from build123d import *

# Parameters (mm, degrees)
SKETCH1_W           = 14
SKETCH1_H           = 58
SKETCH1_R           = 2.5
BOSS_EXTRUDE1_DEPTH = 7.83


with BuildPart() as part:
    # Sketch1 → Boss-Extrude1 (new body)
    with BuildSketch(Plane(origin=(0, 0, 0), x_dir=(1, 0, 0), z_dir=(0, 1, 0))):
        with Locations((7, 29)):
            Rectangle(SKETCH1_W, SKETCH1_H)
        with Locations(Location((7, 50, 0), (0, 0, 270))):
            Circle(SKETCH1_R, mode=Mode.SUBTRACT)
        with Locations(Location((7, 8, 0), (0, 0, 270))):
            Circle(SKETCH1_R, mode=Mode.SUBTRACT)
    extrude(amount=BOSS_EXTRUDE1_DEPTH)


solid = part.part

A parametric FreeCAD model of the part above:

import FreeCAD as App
import Part
import Sketcher

V = App.Vector

doc = App.newDocument("Part")
body = doc.addObject("PartDesign::Body", "Body")

# Sketch on XZ plane
sketch1 = body.newObject("Sketcher::SketchObject", "Sketch")
sketch1.AttachmentSupport = (doc.getObject("XZ_Plane"), [""])
sketch1.MapMode = "FlatFace"
sketch1.addGeometry([
    Part.LineSegment(V(0, -58, 0), V(0, 0, 0)),  # 0
    Part.LineSegment(V(0, 0, 0), V(14, 0, 0)),  # 1
    Part.LineSegment(V(14, 0, 0), V(14, -58, 0)),  # 2
    Part.LineSegment(V(14, -58, 0), V(0, -58, 0)),  # 3
    Part.Circle(V(7, -8, 0), V(0, 0, 1), 2.5),  # 4
    Part.Circle(V(7, -50, 0), V(0, 0, 1), 2.5),  # 5
], False)
sketch1.addConstraint([
    Sketcher.Constraint("Coincident", 0, 2, 1, 1),
    Sketcher.Constraint("Coincident", 1, 2, 2, 1),
    Sketcher.Constraint("Coincident", 2, 2, 3, 1),
    Sketcher.Constraint("Coincident", 3, 2, 0, 1),
    Sketcher.Constraint("Vertical", 0),
    Sketcher.Constraint("Horizontal", 1),
    Sketcher.Constraint("Vertical", 2),
    Sketcher.Constraint("Horizontal", 3),
    Sketcher.Constraint("Coincident", 0, 2, -1, 1),
    Sketcher.Constraint("Equal", 4, 5),
    Sketcher.Constraint("Vertical", 4, 3, 5, 3),
    Sketcher.Constraint("Diameter", 4, 5.0),
    Sketcher.Constraint("DistanceX", 1, 1, 1, 2, 14.0),
    Sketcher.Constraint("DistanceY", 0, 1, 0, 2, 58.0),
    Sketcher.Constraint("DistanceX", -1, 1, 4, 3, 7.0),
    Sketcher.Constraint("DistanceY", 4, 3, -1, 1, 8.0),
    Sketcher.Constraint("DistanceY", 5, 3, -1, 1, 50.0),
])
pad1 = body.newObject("PartDesign::Pad", "Pad")
pad1.Profile = sketch1
pad1.Length = 7.83
pad1.Reversed = True

doc.recompute()
